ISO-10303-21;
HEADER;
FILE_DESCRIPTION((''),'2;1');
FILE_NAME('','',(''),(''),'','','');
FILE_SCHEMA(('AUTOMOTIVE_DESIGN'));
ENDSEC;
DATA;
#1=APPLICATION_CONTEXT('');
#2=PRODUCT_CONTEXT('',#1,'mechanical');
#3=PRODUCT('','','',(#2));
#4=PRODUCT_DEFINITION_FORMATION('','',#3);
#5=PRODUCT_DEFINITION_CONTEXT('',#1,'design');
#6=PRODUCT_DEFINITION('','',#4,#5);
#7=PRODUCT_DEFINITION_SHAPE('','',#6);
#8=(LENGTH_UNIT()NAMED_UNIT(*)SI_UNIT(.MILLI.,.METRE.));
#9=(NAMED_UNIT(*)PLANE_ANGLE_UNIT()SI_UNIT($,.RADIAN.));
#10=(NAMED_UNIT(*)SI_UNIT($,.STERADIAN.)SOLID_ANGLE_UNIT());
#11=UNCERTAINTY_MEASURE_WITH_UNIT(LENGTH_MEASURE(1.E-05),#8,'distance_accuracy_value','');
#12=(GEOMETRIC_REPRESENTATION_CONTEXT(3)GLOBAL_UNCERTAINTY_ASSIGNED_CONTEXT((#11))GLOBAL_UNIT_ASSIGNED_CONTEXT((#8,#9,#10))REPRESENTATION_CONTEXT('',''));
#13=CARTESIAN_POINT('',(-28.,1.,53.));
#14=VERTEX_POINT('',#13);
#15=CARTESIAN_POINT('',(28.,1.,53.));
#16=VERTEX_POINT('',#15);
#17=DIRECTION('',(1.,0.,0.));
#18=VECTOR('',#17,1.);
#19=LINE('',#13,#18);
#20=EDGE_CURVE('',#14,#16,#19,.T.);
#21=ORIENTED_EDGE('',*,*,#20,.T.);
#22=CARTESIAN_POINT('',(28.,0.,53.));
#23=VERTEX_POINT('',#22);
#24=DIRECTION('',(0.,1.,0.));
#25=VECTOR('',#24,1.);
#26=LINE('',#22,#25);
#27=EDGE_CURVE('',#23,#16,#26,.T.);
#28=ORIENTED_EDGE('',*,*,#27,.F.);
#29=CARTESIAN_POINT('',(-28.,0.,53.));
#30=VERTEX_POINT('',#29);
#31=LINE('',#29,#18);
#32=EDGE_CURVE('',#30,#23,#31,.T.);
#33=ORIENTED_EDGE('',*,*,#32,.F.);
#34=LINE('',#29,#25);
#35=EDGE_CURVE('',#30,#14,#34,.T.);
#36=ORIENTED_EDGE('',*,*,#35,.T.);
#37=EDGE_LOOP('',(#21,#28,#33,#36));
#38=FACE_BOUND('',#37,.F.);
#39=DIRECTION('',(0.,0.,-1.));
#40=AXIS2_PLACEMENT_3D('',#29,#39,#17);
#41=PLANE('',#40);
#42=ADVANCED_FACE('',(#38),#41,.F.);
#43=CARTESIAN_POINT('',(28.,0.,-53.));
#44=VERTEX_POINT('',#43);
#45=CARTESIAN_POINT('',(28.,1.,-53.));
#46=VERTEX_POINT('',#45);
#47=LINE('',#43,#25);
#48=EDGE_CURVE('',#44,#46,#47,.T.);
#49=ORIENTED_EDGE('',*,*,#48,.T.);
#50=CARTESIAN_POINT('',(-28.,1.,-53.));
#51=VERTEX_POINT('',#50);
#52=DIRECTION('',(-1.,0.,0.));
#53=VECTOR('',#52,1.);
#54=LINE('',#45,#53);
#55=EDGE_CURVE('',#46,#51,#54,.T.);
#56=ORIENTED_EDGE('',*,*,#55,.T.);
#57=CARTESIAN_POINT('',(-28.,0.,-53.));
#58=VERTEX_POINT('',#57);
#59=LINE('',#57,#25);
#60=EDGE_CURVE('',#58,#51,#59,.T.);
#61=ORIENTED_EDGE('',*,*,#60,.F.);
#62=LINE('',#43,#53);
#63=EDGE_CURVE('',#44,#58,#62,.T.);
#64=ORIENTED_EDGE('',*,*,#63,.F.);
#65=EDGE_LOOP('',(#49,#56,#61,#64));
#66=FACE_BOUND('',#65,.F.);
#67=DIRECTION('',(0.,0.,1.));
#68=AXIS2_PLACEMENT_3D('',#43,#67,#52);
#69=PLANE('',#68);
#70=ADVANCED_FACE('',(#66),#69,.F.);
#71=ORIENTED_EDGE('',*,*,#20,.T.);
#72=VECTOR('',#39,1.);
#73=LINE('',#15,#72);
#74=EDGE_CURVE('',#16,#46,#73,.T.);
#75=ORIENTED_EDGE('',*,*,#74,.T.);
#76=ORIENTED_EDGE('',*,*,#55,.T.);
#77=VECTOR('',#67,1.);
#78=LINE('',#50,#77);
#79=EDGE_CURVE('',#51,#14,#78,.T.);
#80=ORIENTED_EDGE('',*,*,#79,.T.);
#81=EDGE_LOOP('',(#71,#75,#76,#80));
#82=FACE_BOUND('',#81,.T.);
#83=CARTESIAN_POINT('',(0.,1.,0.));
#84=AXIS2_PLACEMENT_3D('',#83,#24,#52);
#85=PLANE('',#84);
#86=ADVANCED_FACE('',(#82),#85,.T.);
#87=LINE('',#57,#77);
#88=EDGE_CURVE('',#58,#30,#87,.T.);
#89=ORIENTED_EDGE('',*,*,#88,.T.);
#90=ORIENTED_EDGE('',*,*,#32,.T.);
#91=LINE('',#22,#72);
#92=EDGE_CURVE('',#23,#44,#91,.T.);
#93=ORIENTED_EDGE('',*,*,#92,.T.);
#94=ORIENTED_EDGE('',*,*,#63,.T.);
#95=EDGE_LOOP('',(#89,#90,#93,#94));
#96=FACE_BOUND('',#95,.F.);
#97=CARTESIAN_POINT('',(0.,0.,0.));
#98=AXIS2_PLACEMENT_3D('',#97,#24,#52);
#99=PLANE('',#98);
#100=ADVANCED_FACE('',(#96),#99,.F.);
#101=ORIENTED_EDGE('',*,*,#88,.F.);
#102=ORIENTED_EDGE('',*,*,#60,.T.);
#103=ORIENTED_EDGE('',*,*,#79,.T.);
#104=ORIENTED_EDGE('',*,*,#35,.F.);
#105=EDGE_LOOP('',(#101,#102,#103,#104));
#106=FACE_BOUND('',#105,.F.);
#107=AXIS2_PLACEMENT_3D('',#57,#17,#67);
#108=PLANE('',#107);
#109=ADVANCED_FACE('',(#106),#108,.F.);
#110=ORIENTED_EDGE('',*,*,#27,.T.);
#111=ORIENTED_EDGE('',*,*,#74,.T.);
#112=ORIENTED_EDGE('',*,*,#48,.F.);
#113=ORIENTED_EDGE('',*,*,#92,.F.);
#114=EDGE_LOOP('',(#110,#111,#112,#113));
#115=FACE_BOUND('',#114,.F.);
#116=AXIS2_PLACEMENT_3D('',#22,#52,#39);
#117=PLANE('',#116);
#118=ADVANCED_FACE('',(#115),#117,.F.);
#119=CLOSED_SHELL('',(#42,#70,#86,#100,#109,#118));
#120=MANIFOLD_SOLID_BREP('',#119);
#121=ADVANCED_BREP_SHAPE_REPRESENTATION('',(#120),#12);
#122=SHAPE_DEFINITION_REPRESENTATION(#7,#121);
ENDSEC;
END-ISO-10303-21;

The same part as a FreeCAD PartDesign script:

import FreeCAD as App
import Part
import Sketcher
from FreeCAD import Vector
Q = App.Units.Quantity

doc = App.newDocument("Part")
body = doc.addObject("PartDesign::Body", "Body")

sketch1 = body.newObject("Sketcher::SketchObject", "Sketch")
sketch1.AttachmentSupport = (doc.getObject("XZ_Plane"), [""])
sketch1.MapMode = "FlatFace"
sketch1.addGeometry([
    Part.LineSegment(Vector(28, 53, 0), Vector(28, -53, 0)),
    Part.LineSegment(Vector(28, -53, 0), Vector(-28, -53, 0)),
    Part.LineSegment(Vector(-28, -53, 0), Vector(-28, 53, 0)),
    Part.LineSegment(Vector(-28, 53, 0), Vector(28, 53, 0)),
], False)
sketch1.addConstraint([
    Sketcher.Constraint("Coincident", 0, 2, 1, 1),
    Sketcher.Constraint("Coincident", 1, 2, 2, 1),
    Sketcher.Constraint("Coincident", 2, 2, 3, 1),
    Sketcher.Constraint("Coincident", 3, 2, 0, 1),
    Sketcher.Constraint("Vertical", 0),
    Sketcher.Constraint("Horizontal", 1),
    Sketcher.Constraint("Vertical", 2),
    Sketcher.Constraint("Horizontal", 3),
    Sketcher.Constraint("Symmetric", 0, 2, 2, 2, -1, 1),
    Sketcher.Constraint("DistanceX", 1, 2, 1, 1, Q("56 mm")),
    Sketcher.Constraint("DistanceY", 0, 2, 0, 1, Q("106 mm")),
])
pad1 = body.newObject("PartDesign::Pad", "Pad")
pad1.Profile = sketch1
pad1.Length = 1
pad1.Reversed = True

doc.recompute()
